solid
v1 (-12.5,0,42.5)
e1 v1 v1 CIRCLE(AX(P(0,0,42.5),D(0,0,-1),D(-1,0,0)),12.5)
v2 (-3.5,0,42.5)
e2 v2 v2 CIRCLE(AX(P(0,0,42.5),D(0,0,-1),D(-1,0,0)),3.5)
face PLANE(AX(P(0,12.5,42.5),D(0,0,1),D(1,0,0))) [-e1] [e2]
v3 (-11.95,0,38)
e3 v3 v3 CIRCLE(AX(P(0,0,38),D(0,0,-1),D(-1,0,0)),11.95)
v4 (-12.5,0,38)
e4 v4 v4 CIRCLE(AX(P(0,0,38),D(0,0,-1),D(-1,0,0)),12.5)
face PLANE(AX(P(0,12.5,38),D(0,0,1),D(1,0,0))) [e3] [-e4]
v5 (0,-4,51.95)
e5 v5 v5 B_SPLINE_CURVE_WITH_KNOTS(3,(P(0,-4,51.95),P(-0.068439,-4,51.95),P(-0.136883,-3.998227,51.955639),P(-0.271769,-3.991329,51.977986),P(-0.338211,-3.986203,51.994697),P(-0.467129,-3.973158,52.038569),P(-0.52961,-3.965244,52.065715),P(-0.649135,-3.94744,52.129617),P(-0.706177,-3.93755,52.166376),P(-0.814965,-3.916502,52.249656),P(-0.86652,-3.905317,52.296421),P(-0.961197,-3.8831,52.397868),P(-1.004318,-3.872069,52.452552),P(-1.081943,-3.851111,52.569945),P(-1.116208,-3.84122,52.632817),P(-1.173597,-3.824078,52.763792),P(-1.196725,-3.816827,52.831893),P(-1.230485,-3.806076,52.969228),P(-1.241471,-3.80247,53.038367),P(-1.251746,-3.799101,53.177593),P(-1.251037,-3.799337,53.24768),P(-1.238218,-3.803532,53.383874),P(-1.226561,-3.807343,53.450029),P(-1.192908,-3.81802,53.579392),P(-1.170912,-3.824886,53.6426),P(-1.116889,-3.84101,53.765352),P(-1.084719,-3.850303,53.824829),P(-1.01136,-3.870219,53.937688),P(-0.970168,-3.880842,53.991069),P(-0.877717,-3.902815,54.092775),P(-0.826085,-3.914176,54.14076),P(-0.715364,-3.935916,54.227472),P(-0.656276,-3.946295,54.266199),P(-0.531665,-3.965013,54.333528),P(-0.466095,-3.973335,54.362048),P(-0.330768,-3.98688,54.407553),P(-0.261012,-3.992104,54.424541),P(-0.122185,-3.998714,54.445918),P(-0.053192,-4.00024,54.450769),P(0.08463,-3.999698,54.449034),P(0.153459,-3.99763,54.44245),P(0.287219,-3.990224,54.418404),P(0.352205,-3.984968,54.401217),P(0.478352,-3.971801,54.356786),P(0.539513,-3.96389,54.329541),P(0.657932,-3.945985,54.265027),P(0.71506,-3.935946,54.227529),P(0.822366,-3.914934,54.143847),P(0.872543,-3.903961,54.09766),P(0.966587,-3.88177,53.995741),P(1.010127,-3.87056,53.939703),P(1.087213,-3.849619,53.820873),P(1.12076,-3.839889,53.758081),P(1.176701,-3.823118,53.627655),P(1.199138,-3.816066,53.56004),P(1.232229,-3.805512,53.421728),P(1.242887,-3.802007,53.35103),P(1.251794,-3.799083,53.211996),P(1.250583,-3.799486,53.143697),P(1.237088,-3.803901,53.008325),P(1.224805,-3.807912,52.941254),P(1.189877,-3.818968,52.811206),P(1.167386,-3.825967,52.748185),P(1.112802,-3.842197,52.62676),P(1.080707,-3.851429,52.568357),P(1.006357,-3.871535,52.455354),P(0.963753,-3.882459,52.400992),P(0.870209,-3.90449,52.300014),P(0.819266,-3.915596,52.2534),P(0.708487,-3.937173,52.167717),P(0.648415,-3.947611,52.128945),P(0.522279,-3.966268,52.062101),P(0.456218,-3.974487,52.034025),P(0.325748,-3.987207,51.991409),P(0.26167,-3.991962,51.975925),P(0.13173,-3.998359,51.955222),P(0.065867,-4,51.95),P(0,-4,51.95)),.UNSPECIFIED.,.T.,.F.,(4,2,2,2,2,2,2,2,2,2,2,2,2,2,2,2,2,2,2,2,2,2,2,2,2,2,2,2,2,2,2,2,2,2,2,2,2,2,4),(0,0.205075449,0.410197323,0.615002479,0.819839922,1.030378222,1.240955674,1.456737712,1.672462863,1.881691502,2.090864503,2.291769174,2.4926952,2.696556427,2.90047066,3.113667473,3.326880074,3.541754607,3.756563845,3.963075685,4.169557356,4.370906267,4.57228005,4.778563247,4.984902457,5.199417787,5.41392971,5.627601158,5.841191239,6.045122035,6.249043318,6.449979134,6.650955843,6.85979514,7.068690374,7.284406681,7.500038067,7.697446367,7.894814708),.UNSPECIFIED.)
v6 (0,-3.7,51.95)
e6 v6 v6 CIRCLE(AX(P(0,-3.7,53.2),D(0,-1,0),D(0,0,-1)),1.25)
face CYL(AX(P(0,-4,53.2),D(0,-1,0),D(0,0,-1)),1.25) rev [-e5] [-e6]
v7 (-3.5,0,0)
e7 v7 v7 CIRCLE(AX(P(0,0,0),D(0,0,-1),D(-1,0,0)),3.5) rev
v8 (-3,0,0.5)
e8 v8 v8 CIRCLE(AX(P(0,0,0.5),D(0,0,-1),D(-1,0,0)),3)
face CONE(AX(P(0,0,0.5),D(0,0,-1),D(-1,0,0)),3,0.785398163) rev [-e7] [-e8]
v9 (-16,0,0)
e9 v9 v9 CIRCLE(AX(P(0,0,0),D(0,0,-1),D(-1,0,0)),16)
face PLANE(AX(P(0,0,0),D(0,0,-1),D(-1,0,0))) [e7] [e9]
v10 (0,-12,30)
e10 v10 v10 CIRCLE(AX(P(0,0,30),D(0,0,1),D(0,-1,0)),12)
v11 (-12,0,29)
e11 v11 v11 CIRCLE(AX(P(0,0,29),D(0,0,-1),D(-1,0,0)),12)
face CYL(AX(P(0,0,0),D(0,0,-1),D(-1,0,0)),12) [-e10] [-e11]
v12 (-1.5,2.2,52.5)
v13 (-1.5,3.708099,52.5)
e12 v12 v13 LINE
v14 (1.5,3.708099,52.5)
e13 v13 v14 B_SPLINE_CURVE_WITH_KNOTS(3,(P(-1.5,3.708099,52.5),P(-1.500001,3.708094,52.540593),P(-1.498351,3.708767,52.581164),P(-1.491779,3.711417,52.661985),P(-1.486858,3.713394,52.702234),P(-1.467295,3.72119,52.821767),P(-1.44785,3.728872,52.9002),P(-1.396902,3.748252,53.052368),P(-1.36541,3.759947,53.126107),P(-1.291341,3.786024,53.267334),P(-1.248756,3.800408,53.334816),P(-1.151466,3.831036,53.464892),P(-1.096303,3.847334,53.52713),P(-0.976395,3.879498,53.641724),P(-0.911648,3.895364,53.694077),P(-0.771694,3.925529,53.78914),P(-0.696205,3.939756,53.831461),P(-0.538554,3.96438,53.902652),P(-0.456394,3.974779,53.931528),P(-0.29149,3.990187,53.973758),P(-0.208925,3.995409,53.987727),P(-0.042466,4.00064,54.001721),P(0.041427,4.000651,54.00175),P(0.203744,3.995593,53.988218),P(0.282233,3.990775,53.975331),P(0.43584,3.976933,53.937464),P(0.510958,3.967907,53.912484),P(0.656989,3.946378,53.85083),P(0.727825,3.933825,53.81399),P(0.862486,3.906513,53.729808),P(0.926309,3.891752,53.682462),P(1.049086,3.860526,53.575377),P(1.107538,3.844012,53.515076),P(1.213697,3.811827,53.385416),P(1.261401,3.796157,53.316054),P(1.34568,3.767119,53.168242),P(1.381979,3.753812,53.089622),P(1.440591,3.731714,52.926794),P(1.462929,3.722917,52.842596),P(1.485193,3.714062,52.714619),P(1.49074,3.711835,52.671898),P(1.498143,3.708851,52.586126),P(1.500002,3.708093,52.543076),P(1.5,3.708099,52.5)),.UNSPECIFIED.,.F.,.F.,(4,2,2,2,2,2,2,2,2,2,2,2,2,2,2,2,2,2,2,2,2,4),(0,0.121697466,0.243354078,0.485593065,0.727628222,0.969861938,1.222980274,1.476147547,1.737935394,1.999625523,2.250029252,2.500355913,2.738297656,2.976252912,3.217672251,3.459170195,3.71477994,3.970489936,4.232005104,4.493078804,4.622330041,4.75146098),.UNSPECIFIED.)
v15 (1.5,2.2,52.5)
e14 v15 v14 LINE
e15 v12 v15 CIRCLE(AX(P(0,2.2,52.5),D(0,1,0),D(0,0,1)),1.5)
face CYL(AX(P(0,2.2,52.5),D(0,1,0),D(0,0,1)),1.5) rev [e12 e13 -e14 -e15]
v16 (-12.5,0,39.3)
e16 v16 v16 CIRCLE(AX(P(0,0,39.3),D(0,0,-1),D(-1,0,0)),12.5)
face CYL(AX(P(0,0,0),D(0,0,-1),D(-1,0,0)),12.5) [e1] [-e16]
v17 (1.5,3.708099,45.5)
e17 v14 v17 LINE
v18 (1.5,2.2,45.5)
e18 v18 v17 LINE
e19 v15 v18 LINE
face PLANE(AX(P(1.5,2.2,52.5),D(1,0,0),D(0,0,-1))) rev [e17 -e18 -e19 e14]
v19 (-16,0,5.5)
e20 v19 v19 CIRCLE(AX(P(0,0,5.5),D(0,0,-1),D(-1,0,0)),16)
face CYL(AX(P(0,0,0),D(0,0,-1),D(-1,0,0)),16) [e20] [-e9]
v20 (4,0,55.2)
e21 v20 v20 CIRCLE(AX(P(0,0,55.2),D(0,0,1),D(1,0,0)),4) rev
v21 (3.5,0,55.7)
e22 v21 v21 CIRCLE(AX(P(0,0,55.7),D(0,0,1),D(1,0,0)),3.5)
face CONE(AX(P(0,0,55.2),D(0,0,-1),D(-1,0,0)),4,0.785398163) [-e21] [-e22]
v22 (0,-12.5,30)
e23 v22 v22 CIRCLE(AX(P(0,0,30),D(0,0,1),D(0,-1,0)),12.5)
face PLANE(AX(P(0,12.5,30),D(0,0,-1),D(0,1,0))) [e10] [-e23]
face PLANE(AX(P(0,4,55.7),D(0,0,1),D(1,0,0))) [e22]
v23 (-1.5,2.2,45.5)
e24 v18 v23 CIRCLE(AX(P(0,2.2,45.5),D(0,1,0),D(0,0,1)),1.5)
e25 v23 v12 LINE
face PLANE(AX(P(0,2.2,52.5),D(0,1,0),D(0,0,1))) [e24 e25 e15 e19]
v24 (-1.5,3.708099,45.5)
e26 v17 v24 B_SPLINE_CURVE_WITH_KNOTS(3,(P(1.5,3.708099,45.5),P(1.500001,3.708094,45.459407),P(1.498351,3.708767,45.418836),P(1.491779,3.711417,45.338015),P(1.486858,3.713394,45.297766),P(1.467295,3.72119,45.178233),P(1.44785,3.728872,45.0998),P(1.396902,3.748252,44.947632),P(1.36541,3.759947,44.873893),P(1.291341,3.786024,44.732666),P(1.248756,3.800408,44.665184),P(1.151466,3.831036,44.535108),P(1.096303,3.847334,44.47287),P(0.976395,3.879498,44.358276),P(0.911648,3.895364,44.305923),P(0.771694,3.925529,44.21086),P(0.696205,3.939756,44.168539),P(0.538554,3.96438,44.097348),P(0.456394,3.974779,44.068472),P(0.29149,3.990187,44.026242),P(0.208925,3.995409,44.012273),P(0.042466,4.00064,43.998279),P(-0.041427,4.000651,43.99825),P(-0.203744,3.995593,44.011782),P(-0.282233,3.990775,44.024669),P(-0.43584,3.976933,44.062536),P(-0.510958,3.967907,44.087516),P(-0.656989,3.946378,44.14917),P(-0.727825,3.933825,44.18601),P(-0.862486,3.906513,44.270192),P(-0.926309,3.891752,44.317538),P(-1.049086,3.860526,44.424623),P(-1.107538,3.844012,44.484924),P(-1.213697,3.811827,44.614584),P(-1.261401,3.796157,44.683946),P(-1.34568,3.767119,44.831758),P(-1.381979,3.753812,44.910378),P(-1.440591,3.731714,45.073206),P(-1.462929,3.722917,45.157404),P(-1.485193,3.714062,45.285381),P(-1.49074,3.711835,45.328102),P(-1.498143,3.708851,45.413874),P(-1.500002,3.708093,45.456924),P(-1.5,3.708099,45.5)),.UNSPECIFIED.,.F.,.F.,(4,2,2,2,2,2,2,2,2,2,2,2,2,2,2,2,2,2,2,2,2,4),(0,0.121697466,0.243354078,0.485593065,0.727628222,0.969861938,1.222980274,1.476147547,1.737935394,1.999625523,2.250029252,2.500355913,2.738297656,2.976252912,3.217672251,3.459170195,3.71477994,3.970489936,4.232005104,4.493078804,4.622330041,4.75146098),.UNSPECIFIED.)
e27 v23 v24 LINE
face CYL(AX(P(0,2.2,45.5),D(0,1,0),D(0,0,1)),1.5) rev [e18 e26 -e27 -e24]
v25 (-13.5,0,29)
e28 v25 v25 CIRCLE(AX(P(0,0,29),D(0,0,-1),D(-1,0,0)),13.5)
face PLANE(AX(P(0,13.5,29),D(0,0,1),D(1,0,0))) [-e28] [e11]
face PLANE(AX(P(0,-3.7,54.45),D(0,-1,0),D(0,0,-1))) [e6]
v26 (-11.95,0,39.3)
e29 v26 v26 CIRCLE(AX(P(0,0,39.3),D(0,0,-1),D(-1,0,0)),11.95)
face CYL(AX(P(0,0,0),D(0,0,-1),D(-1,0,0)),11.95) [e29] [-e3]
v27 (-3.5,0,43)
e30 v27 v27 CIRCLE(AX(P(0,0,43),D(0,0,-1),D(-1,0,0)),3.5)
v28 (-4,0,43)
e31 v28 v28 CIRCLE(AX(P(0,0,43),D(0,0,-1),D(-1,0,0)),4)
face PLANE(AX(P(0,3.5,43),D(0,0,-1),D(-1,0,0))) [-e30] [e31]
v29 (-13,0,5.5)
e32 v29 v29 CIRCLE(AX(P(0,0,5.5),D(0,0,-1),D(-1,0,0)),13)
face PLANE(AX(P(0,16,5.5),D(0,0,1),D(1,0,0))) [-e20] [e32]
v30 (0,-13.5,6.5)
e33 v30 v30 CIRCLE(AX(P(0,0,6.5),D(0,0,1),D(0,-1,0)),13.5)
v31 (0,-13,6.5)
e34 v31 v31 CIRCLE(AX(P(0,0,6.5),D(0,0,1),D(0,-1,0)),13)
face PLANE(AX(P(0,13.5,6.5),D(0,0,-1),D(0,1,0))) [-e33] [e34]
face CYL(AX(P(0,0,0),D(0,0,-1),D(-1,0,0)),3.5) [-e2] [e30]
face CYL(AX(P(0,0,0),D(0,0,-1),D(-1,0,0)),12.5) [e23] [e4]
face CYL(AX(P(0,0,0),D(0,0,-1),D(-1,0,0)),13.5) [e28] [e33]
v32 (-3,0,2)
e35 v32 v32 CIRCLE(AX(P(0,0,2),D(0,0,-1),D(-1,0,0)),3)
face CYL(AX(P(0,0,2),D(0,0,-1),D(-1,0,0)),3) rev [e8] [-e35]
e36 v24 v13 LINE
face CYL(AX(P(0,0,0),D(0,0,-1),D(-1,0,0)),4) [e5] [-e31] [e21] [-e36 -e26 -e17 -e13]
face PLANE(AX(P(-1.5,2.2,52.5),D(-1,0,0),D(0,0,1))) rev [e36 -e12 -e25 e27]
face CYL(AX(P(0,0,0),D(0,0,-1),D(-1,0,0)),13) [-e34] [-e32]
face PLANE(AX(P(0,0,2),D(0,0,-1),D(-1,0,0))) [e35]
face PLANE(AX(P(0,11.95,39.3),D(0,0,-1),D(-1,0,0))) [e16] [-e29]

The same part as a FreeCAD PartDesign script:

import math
import FreeCAD as App
import Part
import Sketcher
Q = App.Units.Quantity


def edges_at(feature, points):
    """Names of the edges that pass closest to the given points."""
    edges = feature.Shape.Edges
    near = lambda p: min(range(len(edges)), key=lambda i: edges[i].distToShape(Part.Vertex(*p))[0])
    return sorted({f"Edge{near(p) + 1}" for p in points})


def add_polygon(sketch, points):
    """Adds a closed chain of lines whose ends are joined by coincident constraints."""
    first, n = sketch.GeometryCount, len(points)
    for a, b in zip(points, points[1:] + points[:1]):
        sketch.addGeometry(Part.LineSegment(App.Vector(*a, 0), App.Vector(*b, 0)), False)
    for i in range(n):
        sketch.addConstraint(Sketcher.Constraint("Coincident", first + i, 2, first + (i + 1) % n, 1))

doc = App.newDocument("Part")
params = doc.addObject("Spreadsheet::Sheet", "Params")
for row, (alias, value) in enumerate([
    ("sketch1_width", "16 mm"),
    ("sketch1_width2", "3 mm"),
    ("sketch1_width3", "9 mm"),
    ("sketch1_width4", "4 mm"),
    ("sketch1_height", "23 mm"),
    ("revolution_angle", "360 deg"),
    ("chamfer_size", "0.5 mm"),
    ("sketch2_radius", "1.5 mm"),
    ("sketch2_height", "7 mm"),
    ("pocket1_length", "1.8 mm"),
    ("sketch3_diameter", "6 mm"),
    ("pocket2_length", "2 mm"),
    ("sketch4_width", "0.3 mm"),
    ("sketch4_height", "1.25 mm"),
    ("groove_angle", "360 deg"),
    ("chamfer2_size", "0.5 mm"),
    ("sketch5_width", "0.5 mm"),
    ("groove2_angle", "360 deg"),
], start=1):
    params.set(f"A{row}", alias)
    params.set(f"B{row}", "=" + value)
    params.setAlias(f"B{row}", alias)

body = doc.addObject("PartDesign::Body", "Body")

sketch1 = doc.addObject("Sketcher::SketchObject", "Sketch")
body.addObject(sketch1)
sketch1.AttachmentSupport = (doc.YZ_Plane, [""])
sketch1.MapMode = "FlatFace"
add_polygon(sketch1, [(0, 0), (16, 0), (16, 5.5), (13, 5.5), (13, 6), (13.5, 6), (13.5, 29), (12, 29), (12, 29.5), (12.5, 29.5), (12.5, 38), (11.9, 38), (11.9, 39.3), (12.5, 39.3), (12.5, 42.5), (3.5, 42.5), (3.5, 43), (4, 43), (4, 55.7), (0, 55.7)])
sketch1.addConstraint([
    Sketcher.Constraint("Horizontal", 0),
    Sketcher.Constraint("Vertical", 1),
    Sketcher.Constraint("Horizontal", 2),
    Sketcher.Constraint("Vertical", 3),
    Sketcher.Constraint("Horizontal", 4),
    Sketcher.Constraint("Vertical", 5),
    Sketcher.Constraint("Horizontal", 6),
    Sketcher.Constraint("Vertical", 7),
    Sketcher.Constraint("Horizontal", 8),
    Sketcher.Constraint("Vertical", 9),
    Sketcher.Constraint("Horizontal", 10),
    Sketcher.Constraint("Vertical", 11),
    Sketcher.Constraint("Horizontal", 12),
    Sketcher.Constraint("Vertical", 13),
    Sketcher.Constraint("Horizontal", 14),
    Sketcher.Constraint("Vertical", 15),
    Sketcher.Constraint("Horizontal", 16),
    Sketcher.Constraint("Vertical", 17),
    Sketcher.Constraint("Horizontal", 18),
    Sketcher.Constraint("Vertical", 19),
    Sketcher.Constraint("Coincident", 19, 2, -1, 1),
    Sketcher.Constraint("Vertical", 9, 2, 12, 2),
    Sketcher.Constraint("Equal", 4, 8),
    Sketcher.Constraint("Equal", 8, 16),
    Sketcher.Constraint("Equal", 16, 3),
    Sketcher.Constraint("Equal", 3, 7),
    Sketcher.Constraint("Equal", 7, 15),
    Sketcher.Constraint("DistanceX", 0, 1, 0, 2, Q("16 mm")),
    Sketcher.Constraint("DistanceX", 2, 2, 2, 1, Q("3 mm")),
    Sketcher.Constraint("DistanceX", 14, 2, 14, 1, Q("9 mm")),
    Sketcher.Constraint("DistanceX", 18, 2, 18, 1, Q("4 mm")),
    Sketcher.Constraint("DistanceY", 5, 1, 5, 2, Q("23 mm")),
    Sketcher.Constraint("DistanceX", 4, 1, 4, 2, Q("0.5 mm")),
    Sketcher.Constraint("DistanceY", 1, 1, 1, 2, Q("5.5 mm")),
    Sketcher.Constraint("DistanceY", 9, 1, 9, 2, Q("8.5 mm")),
    Sketcher.Constraint("DistanceY", 11, 1, 11, 2, Q("1.3 mm")),
    Sketcher.Constraint("DistanceY", 13, 1, 13, 2, Q("3.2 mm")),
    Sketcher.Constraint("DistanceY", 17, 1, 17, 2, Q("12.7 mm")),
    Sketcher.Constraint("DistanceX", 10, 2, 10, 1, Q("0.55 mm")),
])
sketch1.setExpression("Constraints[47]", "Params.sketch1_width")
sketch1.setExpression("Constraints[48]", "Params.sketch1_width2")
sketch1.setExpression("Constraints[49]", "Params.sketch1_width3")
sketch1.setExpression("Constraints[50]", "Params.sketch1_width4")
sketch1.setExpression("Constraints[51]", "Params.sketch1_height")
revolution = doc.addObject("PartDesign::Revolution", "Revolution")
body.addObject(revolution)
revolution.Profile = sketch1
revolution.ReferenceAxis = (sketch1, ["V_Axis"])
revolution.setExpression("Angle", "Params.revolution_angle")
doc.recompute()

chamfer = doc.addObject("PartDesign::Chamfer", "Chamfer")
body.addObject(chamfer)
chamfer.Base = (revolution, edges_at(revolution, [(4, 0, 55.7)]))
chamfer.setExpression("Size", "Params.chamfer_size")

sketch2 = doc.addObject("Sketcher::SketchObject", "Sketch001")
body.addObject(sketch2)
sketch2.AttachmentSupport = (doc.XZ_Plane, [""])
sketch2.MapMode = "FlatFace"
sketch2.AttachmentOffset = App.Placement(App.Vector(0, 0, -4), App.Rotation())
sketch2.addGeometry([
    Part.LineSegment(App.Vector(-1.5, 45.5, 0), App.Vector(-1.5, 52.5, 0)),
    Part.ArcOfCircle(Part.Circle(App.Vector(0, 52.5, 0), App.Vector(0, 0, 1), 1.5), math.radians(0), math.radians(180)),
    Part.LineSegment(App.Vector(1.5, 52.5, 0), App.Vector(1.5, 45.5, 0)),
    Part.ArcOfCircle(Part.Circle(App.Vector(0, 45.5, 0), App.Vector(0, 0, 1), 1.5), math.radians(180), math.radians(360)),
], False)
sketch2.addConstraint([
    Sketcher.Constraint("Tangent", 0, 2, 1, 2),
    Sketcher.Constraint("Tangent", 1, 1, 2, 1),
    Sketcher.Constraint("Tangent", 2, 2, 3, 2),
    Sketcher.Constraint("Tangent", 3, 1, 0, 1),
    Sketcher.Constraint("Vertical", 0),
    Sketcher.Constraint("Vertical", 2),
    Sketcher.Constraint("PointOnObject", 1, 3, -2),
    Sketcher.Constraint("Radius", 1, Q("1.5 mm")),
    Sketcher.Constraint("DistanceY", 0, 1, 0, 2, Q("7 mm")),
    Sketcher.Constraint("DistanceY", -1, 1, 1, 3, Q("52.5 mm")),
])
sketch2.setExpression("Constraints[7]", "Params.sketch2_radius")
sketch2.setExpression("Constraints[8]", "Params.sketch2_height")
pocket1 = doc.addObject("PartDesign::Pocket", "Pocket")
body.addObject(pocket1)
pocket1.Profile = sketch2
pocket1.setExpression("Length", "Params.pocket1_length")
pocket1.Reversed = True

sketch3 = doc.addObject("Sketcher::SketchObject", "Sketch002")
body.addObject(sketch3)
sketch3.AttachmentSupport = (doc.XY_Plane, [""])
sketch3.MapMode = "FlatFace"
sketch3.addGeometry(Part.Circle(App.Vector(0, 0, 0), App.Vector(0, 0, 1), 3), False)
sketch3.addConstraint([
    Sketcher.Constraint("Coincident", 0, 3, -1, 1),
    Sketcher.Constraint("Diameter", 0, Q("6 mm")),
])
sketch3.setExpression("Constraints[1]", "Params.sketch3_diameter")
pocket2 = doc.addObject("PartDesign::Pocket", "Pocket001")
body.addObject(pocket2)
pocket2.Profile = sketch3
pocket2.setExpression("Length", "Params.pocket2_length")
pocket2.Reversed = True

sketch4 = doc.addObject("Sketcher::SketchObject", "Sketch003")
body.addObject(sketch4)
sketch4.AttachmentSupport = (doc.YZ_Plane, [""])
sketch4.MapMode = "FlatFace"
add_polygon(sketch4, [(-3.7, 54.45), (-4, 54.45), (-4, 53.2), (-3.7, 53.2)])
sketch4.addGeometry(Part.LineSegment(App.Vector(-4, 53.2, 0), App.Vector(-3.7, 53.2, 0)), True)
sketch4.addConstraint([
    Sketcher.Constraint("Horizontal", 0),
    Sketcher.Constraint("Vertical", 1),
    Sketcher.Constraint("Horizontal", 2),
    Sketcher.Constraint("Vertical", 3),
    Sketcher.Constraint("Horizontal", 4),
    Sketcher.Constraint("Coincident", 4, 1, 1, 2),
    Sketcher.Constraint("Vertical", 3, 2, 4, 2),
    Sketcher.Constraint("DistanceX", 0, 2, 0, 1, Q("0.3 mm")),
    Sketcher.Constraint("DistanceX", 0, 2, -1, 1, Q("4 mm")),
    Sketcher.Constraint("DistanceY", 1, 2, 1, 1, Q("1.25 mm")),
    Sketcher.Constraint("DistanceY", -1, 1, 1, 2, Q("53.2 mm")),
])
sketch4.setExpression("Constraints[11]", "Params.sketch4_width")
sketch4.setExpression("Constraints[13]", "Params.sketch4_height")
groove = doc.addObject("PartDesign::Groove", "Groove")
body.addObject(groove)
groove.Profile = sketch4
groove.ReferenceAxis = (sketch4, ["Axis0"])
groove.setExpression("Angle", "Params.groove_angle")
doc.recompute()

chamfer2 = doc.addObject("PartDesign::Chamfer", "Chamfer001")
body.addObject(chamfer2)
chamfer2.Base = (groove, edges_at(groove, [(3, 0, 0)]))
chamfer2.setExpression("Size", "Params.chamfer2_size")

sketch5 = doc.addObject("Sketcher::SketchObject", "Sketch004")
body.addObject(sketch5)
sketch5.AttachmentSupport = (doc.YZ_Plane, [""])
sketch5.MapMode = "FlatFace"
add_polygon(sketch5, [(12.5, 30), (12, 30), (12, 29.5), (12.5, 29.5)])
add_polygon(sketch5, [(13.5, 6.5), (13, 6.5), (13, 6), (13.5, 6)])
sketch5.addConstraint([
    Sketcher.Constraint("Horizontal", 0),
    Sketcher.Constraint("Vertical", 1),
    Sketcher.Constraint("Horizontal", 2),
    Sketcher.Constraint("Vertical", 3),
    Sketcher.Constraint("Horizontal", 4),
    Sketcher.Constraint("Vertical", 5),
    Sketcher.Constraint("Horizontal", 6),
    Sketcher.Constraint("Vertical", 7),
    Sketcher.Constraint("Equal", 2, 4),
    Sketcher.Constraint("Equal", 6, 1),
    Sketcher.Constraint("Equal", 3, 5),
    Sketcher.Constraint("DistanceX", 0, 2, 0, 1, Q("0.5 mm")),
    Sketcher.Constraint("DistanceX", -1, 1, 0, 2, Q("12 mm")),
    Sketcher.Constraint("DistanceY", -1, 1, 0, 2, Q("30 mm")),
    Sketcher.Constraint("DistanceX", -1, 1, 4, 2, Q("13 mm")),
    Sketcher.Constraint("DistanceY", -1, 1, 5, 2, Q("6 mm")),
])
sketch5.setExpression("Constraints[19]", "Params.sketch5_width")
groove2 = doc.addObject("PartDesign::Groove", "Groove001")
body.addObject(groove2)
groove2.Profile = sketch5
groove2.ReferenceAxis = (sketch5, ["V_Axis"])
groove2.setExpression("Angle", "Params.groove2_angle")

doc.recompute()
